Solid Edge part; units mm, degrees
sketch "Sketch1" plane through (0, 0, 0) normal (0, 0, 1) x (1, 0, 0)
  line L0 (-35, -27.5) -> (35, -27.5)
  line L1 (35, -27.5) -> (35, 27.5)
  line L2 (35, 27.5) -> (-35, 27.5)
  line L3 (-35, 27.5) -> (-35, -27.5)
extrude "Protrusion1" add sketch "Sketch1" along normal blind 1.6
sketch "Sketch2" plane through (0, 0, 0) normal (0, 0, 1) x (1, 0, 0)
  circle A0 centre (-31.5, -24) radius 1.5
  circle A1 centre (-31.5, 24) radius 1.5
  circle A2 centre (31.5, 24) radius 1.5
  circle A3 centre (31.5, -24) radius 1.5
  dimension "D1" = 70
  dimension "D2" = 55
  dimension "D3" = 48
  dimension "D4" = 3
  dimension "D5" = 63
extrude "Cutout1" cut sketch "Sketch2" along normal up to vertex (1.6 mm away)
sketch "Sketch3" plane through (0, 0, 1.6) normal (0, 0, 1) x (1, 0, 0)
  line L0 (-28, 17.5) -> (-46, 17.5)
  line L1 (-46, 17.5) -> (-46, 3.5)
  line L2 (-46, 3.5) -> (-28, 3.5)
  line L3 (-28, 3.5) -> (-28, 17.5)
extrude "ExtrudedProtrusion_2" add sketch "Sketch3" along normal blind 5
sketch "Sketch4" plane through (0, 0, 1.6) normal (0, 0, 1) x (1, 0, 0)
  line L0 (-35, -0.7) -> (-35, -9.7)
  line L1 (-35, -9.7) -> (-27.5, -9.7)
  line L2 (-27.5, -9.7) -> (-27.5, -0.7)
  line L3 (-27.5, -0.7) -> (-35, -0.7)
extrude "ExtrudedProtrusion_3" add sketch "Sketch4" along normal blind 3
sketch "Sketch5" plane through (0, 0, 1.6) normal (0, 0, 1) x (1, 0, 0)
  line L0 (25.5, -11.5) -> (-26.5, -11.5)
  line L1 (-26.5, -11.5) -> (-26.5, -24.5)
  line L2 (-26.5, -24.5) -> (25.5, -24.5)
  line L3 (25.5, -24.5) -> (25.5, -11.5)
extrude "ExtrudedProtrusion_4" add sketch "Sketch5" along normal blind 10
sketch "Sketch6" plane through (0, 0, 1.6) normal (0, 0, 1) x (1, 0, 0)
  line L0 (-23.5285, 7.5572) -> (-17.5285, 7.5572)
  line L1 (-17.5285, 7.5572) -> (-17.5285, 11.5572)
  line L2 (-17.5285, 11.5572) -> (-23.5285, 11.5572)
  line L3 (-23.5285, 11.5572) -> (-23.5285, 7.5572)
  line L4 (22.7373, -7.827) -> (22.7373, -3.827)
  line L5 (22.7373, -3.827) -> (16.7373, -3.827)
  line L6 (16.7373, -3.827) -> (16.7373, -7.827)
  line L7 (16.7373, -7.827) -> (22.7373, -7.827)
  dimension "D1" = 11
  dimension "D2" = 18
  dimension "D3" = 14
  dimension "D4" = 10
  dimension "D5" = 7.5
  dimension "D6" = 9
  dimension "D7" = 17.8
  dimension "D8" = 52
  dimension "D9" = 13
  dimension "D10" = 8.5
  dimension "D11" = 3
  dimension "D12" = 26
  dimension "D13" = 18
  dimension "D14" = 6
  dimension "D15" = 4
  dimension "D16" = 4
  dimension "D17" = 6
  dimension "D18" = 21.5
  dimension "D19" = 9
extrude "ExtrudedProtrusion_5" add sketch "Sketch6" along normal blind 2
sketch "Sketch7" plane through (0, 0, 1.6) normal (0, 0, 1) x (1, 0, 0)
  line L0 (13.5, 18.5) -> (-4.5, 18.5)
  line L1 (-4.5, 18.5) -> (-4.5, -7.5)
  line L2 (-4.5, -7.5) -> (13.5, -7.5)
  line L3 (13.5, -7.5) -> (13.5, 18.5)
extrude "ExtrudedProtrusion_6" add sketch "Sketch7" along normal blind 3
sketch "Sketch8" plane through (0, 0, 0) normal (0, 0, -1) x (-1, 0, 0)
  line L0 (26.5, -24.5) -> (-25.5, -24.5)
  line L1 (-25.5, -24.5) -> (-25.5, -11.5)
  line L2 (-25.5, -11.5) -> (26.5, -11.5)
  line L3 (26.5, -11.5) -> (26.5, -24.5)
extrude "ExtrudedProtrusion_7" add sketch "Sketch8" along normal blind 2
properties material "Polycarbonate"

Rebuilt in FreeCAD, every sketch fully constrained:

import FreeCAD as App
import Part
import Sketcher

doc = App.newDocument("Part")
body = doc.addObject("PartDesign::Body", "Body")

# Sketch on XY plane
sketch1 = body.newObject("Sketcher::SketchObject", "Sketch")
sketch1.AttachmentSupport = (doc.getObject("XY_Plane"), [""])
sketch1.MapMode = "FlatFace"
sketch1.addGeometry([
    Part.LineSegment(App.Vector(-35, 28, 0), App.Vector(-35, -28, 0)),
    Part.LineSegment(App.Vector(-35, -28, 0), App.Vector(35, -28, 0)),
    Part.LineSegment(App.Vector(35, -28, 0), App.Vector(35, 28, 0)),
    Part.LineSegment(App.Vector(35, 28, 0), App.Vector(-35, 28, 0)),
], False)
sketch1.addConstraint([
    Sketcher.Constraint("Coincident", 0, 2, 1, 1),
    Sketcher.Constraint("Coincident", 1, 2, 2, 1),
    Sketcher.Constraint("Coincident", 2, 2, 3, 1),
    Sketcher.Constraint("Coincident", 3, 2, 0, 1),
    Sketcher.Constraint("Vertical", 0),
    Sketcher.Constraint("Horizontal", 1),
    Sketcher.Constraint("Vertical", 2),
    Sketcher.Constraint("Horizontal", 3),
    Sketcher.Constraint("Symmetric", 0, 2, 2, 2, -1, 1),
    Sketcher.Constraint("DistanceX", 1, 1, 1, 2, 70.0),
    Sketcher.Constraint("DistanceY", 0, 2, 0, 1, 55.0),
])
pad1 = body.newObject("PartDesign::Pad", "Pad")
pad1.Profile = sketch1
pad1.Length = 1.6

# Sketch on XY plane
sketch2 = body.newObject("Sketcher::SketchObject", "Sketch001")
sketch2.AttachmentSupport = (doc.getObject("XY_Plane"), [""])
sketch2.MapMode = "FlatFace"
sketch2.addGeometry([
    Part.Circle(App.Vector(-31.5, -24, 0), App.Vector(0, 0, 1), 1.5),
    Part.Circle(App.Vector(-31.5, 24, 0), App.Vector(0, 0, 1), 1.5),
    Part.Circle(App.Vector(31.5, 24, 0), App.Vector(0, 0, 1), 1.5),
    Part.Circle(App.Vector(31.5, -24, 0), App.Vector(0, 0, 1), 1.5),
], False)
sketch2.addConstraint([
    Sketcher.Constraint("Equal", 0, 1),
    Sketcher.Constraint("Equal", 1, 2),
    Sketcher.Constraint("Equal", 2, 3),
    Sketcher.Constraint("Symmetric", 0, 3, 2, 3, -1, 1),
    Sketcher.Constraint("Symmetric", 1, 3, 3, 3, -1, 1),
    Sketcher.Constraint("Symmetric", 1, 3, 2, 3, -2),
    Sketcher.Constraint("Diameter", 0, 3.0),
    Sketcher.Constraint("DistanceY", 0, 3, -1, 1, 24.0),
    Sketcher.Constraint("DistanceX", 1, 3, 2, 3, 63.0),
])
pocket1 = body.newObject("PartDesign::Pocket", "Pocket")
pocket1.Profile = sketch2
pocket1.Length = 1.6
pocket1.Reversed = True

# Sketch on XY plane
sketch3 = body.newObject("Sketcher::SketchObject", "Sketch002")
sketch3.AttachmentSupport = (doc.getObject("XY_Plane"), [""])
sketch3.MapMode = "FlatFace"
sketch3.AttachmentOffset = App.Placement(App.Vector(0, 0, 1.6), App.Rotation())
sketch3.addGeometry([
    Part.LineSegment(App.Vector(-28, 4, 0), App.Vector(-28, 18, 0)),
    Part.LineSegment(App.Vector(-28, 18, 0), App.Vector(-46, 18, 0)),
    Part.LineSegment(App.Vector(-46, 18, 0), App.Vector(-46, 4, 0)),
    Part.LineSegment(App.Vector(-46, 4, 0), App.Vector(-28, 4, 0)),
], False)
sketch3.addConstraint([
    Sketcher.Constraint("Coincident", 0, 2, 1, 1),
    Sketcher.Constraint("Coincident", 1, 2, 2, 1),
    Sketcher.Constraint("Coincident", 2, 2, 3, 1),
    Sketcher.Constraint("Coincident", 3, 2, 0, 1),
    Sketcher.Constraint("Vertical", 0),
    Sketcher.Constraint("Horizontal", 1),
    Sketcher.Constraint("Vertical", 2),
    Sketcher.Constraint("Horizontal", 3),
    Sketcher.Constraint("DistanceX", 1, 2, 1, 1, 18.0),
    Sketcher.Constraint("DistanceY", 0, 1, 0, 2, 14.0),
    Sketcher.Constraint("DistanceX", 0, 2, -1, 1, 28.0),
    Sketcher.Constraint("DistanceY", -1, 1, 0, 2, 17.5),
])
pad2 = body.newObject("PartDesign::Pad", "Pad001")
pad2.Profile = sketch3
pad2.Length = 5

# Sketch on XY plane
sketch4 = body.newObject("Sketcher::SketchObject", "Sketch003")
sketch4.AttachmentSupport = (doc.getObject("XY_Plane"), [""])
sketch4.MapMode = "FlatFace"
sketch4.AttachmentOffset = App.Placement(App.Vector(0, 0, 1.6), App.Rotation())
sketch4.addGeometry([
    Part.LineSegment(App.Vector(-28, -1, 0), App.Vector(-35, -1, 0)),
    Part.LineSegment(App.Vector(-35, -1, 0), App.Vector(-35, -10, 0)),
    Part.LineSegment(App.Vector(-35, -10, 0), App.Vector(-28, -10, 0)),
    Part.LineSegment(App.Vector(-28, -10, 0), App.Vector(-28, -1, 0)),
], False)
sketch4.addConstraint([
    Sketcher.Constraint("Coincident", 0, 2, 1, 1),
    Sketcher.Constraint("Coincident", 1, 2, 2, 1),
    Sketcher.Constraint("Coincident", 2, 2, 3, 1),
    Sketcher.Constraint("Coincident", 3, 2, 0, 1),
    Sketcher.Constraint("Horizontal", 0),
    Sketcher.Constraint("Vertical", 1),
    Sketcher.Constraint("Horizontal", 2),
    Sketcher.Constraint("Vertical", 3),
    Sketcher.Constraint("DistanceY", 1, 2, 1, 1, 9.0),
    Sketcher.Constraint("DistanceX", 0, 2, 0, 1, 7.5),
    Sketcher.Constraint("DistanceX", 0, 2, -1, 1, 35.0),
    Sketcher.Constraint("DistanceY", 0, 2, -1, 1, 0.7),
])
pad3 = body.newObject("PartDesign::Pad", "Pad002")
pad3.Profile = sketch4
pad3.Length = 3

# Sketch on XY plane
sketch5 = body.newObject("Sketcher::SketchObject", "Sketch004")
sketch5.AttachmentSupport = (doc.getObject("XY_Plane"), [""])
sketch5.MapMode = "FlatFace"
sketch5.AttachmentOffset = App.Placement(App.Vector(0, 0, 1.6), App.Rotation())
sketch5.addGeometry([
    Part.LineSegment(App.Vector(26, -24, 0), App.Vector(26, -12, 0)),
    Part.LineSegment(App.Vector(26, -12, 0), App.Vector(-26, -12, 0)),
    Part.LineSegment(App.Vector(-26, -12, 0), App.Vector(-26, -24, 0)),
    Part.LineSegment(App.Vector(-26, -24, 0), App.Vector(26, -24, 0)),
], False)
sketch5.addConstraint([
    Sketcher.Constraint("Coincident", 0, 2, 1, 1),
    Sketcher.Constraint("Coincident", 1, 2, 2, 1),
    Sketcher.Constraint("Coincident", 2, 2, 3, 1),
    Sketcher.Constraint("Coincident", 3, 2, 0, 1),
    Sketcher.Constraint("Vertical", 0),
    Sketcher.Constraint("Horizontal", 1),
    Sketcher.Constraint("Vertical", 2),
    Sketcher.Constraint("Horizontal", 3),
    Sketcher.Constraint("DistanceX", 1, 2, 1, 1, 52.0),
    Sketcher.Constraint("DistanceY", 0, 1, 0, 2, 13.0),
    Sketcher.Constraint("DistanceX", -1, 1, 0, 2, 25.5),
    Sketcher.Constraint("DistanceY", 0, 2, -1, 1, 11.5),
])
pad4 = body.newObject("PartDesign::Pad", "Pad003")
pad4.Profile = sketch5
pad4.Length = 10

# Sketch on XY plane
sketch6 = body.newObject("Sketcher::SketchObject", "Sketch005")
sketch6.AttachmentSupport = (doc.getObject("XY_Plane"), [""])
sketch6.MapMode = "FlatFace"
sketch6.AttachmentOffset = App.Placement(App.Vector(0, 0, 1.6), App.Rotation())
sketch6.addGeometry([
    Part.LineSegment(App.Vector(-23.5, 11.6, 0), App.Vector(-23.5, 7.6, 0)),  # 0
    Part.LineSegment(App.Vector(-23.5, 7.6, 0), App.Vector(-17.5, 7.6, 0)),  # 1
    Part.LineSegment(App.Vector(-17.5, 7.6, 0), App.Vector(-17.5, 11.6, 0)),  # 2
    Part.LineSegment(App.Vector(-17.5, 11.6, 0), App.Vector(-23.5, 11.6, 0)),  # 3
    Part.LineSegment(App.Vector(16.7, -7.8, 0), App.Vector(22.7, -7.8, 0)),  # 4
    Part.LineSegment(App.Vector(22.7, -7.8, 0), App.Vector(22.7, -3.8, 0)),  # 5
    Part.LineSegment(App.Vector(22.7, -3.8, 0), App.Vector(16.7, -3.8, 0)),  # 6
    Part.LineSegment(App.Vector(16.7, -3.8, 0), App.Vector(16.7, -7.8, 0)),  # 7
], False)
sketch6.addConstraint([
    Sketcher.Constraint("Coincident", 0, 2, 1, 1),
    Sketcher.Constraint("Coincident", 1, 2, 2, 1),
    Sketcher.Constraint("Coincident", 2, 2, 3, 1),
    Sketcher.Constraint("Coincident", 3, 2, 0, 1),
    Sketcher.Constraint("Coincident", 4, 2, 5, 1),
    Sketcher.Constraint("Coincident", 5, 2, 6, 1),
    Sketcher.Constraint("Coincident", 6, 2, 7, 1),
    Sketcher.Constraint("Coincident", 7, 2, 4, 1),
    Sketcher.Constraint("Vertical", 0),
    Sketcher.Constraint("Horizontal", 1),
    Sketcher.Constraint("Vertical", 2),
    Sketcher.Constraint("Horizontal", 3),
    Sketcher.Constraint("Horizontal", 4),
    Sketcher.Constraint("Vertical", 5),
    Sketcher.Constraint("Horizontal", 6),
    Sketcher.Constraint("Vertical", 7),
    Sketcher.Constraint("Equal", 3, 4),
    Sketcher.Constraint("Equal", 2, 5),
    Sketcher.Constraint("DistanceX", 1, 1, 1, 2, 6.0),
    Sketcher.Constraint("DistanceY", 0, 2, 0, 1, 4.0),
    Sketcher.Constraint("DistanceY", 4, 2, -1, 1, 7.827),
    Sketcher.Constraint("DistanceX", 0, 2, -1, 1, 23.5285),
    Sketcher.Constraint("DistanceY", -1, 1, 0, 2, 7.5572),
    Sketcher.Constraint("DistanceX", -1, 1, 4, 2, 22.7373),
])
pad5 = body.newObject("PartDesign::Pad", "Pad004")
pad5.Profile = sketch6
pad5.Length = 2

# Sketch on XY plane
sketch7 = body.newObject("Sketcher::SketchObject", "Sketch006")
sketch7.AttachmentSupport = (doc.getObject("XY_Plane"), [""])
sketch7.MapMode = "FlatFace"
sketch7.AttachmentOffset = App.Placement(App.Vector(0, 0, 1.6), App.Rotation())
sketch7.addGeometry([
    Part.LineSegment(App.Vector(14, -8, 0), App.Vector(14, 18, 0)),
    Part.LineSegment(App.Vector(14, 18, 0), App.Vector(-4, 18, 0)),
    Part.LineSegment(App.Vector(-4, 18, 0), App.Vector(-4, -8, 0)),
    Part.LineSegment(App.Vector(-4, -8, 0), App.Vector(14, -8, 0)),
], False)
sketch7.addConstraint([
    Sketcher.Constraint("Coincident", 0, 2, 1, 1),
    Sketcher.Constraint("Coincident", 1, 2, 2, 1),
    Sketcher.Constraint("Coincident", 2, 2, 3, 1),
    Sketcher.Constraint("Coincident", 3, 2, 0, 1),
    Sketcher.Constraint("Vertical", 0),
    Sketcher.Constraint("Horizontal", 1),
    Sketcher.Constraint("Vertical", 2),
    Sketcher.Constraint("Horizontal", 3),
    Sketcher.Constraint("DistanceX", 1, 2, 1, 1, 18.0),
    Sketcher.Constraint("DistanceY", 0, 1, 0, 2, 26.0),
    Sketcher.Constraint("DistanceX", -1, 1, 0, 2, 13.5),
    Sketcher.Constraint("DistanceY", -1, 1, 0, 2, 18.5),
])
pad6 = body.newObject("PartDesign::Pad", "Pad005")
pad6.Profile = sketch7
pad6.Length = 3

# Sketch on XY plane
sketch8 = body.newObject("Sketcher::SketchObject", "Sketch007")
sketch8.AttachmentSupport = (doc.getObject("XY_Plane"), [""])
sketch8.MapMode = "FlatFace"
sketch8.addGeometry([
    Part.LineSegment(App.Vector(26, -24, 0), App.Vector(-26, -24, 0)),
    Part.LineSegment(App.Vector(-26, -24, 0), App.Vector(-26, -12, 0)),
    Part.LineSegment(App.Vector(-26, -12, 0), App.Vector(26, -12, 0)),
    Part.LineSegment(App.Vector(26, -12, 0), App.Vector(26, -24, 0)),
], False)
sketch8.addConstraint([
    Sketcher.Constraint("Coincident", 0, 2, 1, 1),
    Sketcher.Constraint("Coincident", 1, 2, 2, 1),
    Sketcher.Constraint("Coincident", 2, 2, 3, 1),
    Sketcher.Constraint("Coincident", 3, 2, 0, 1),
    Sketcher.Constraint("Horizontal", 0),
    Sketcher.Constraint("Vertical", 1),
    Sketcher.Constraint("Horizontal", 2),
    Sketcher.Constraint("Vertical", 3),
    Sketcher.Constraint("DistanceX", 0, 2, 0, 1, 52.0),
    Sketcher.Constraint("DistanceY", 1, 1, 1, 2, 13.0),
    Sketcher.Constraint("DistanceX", 0, 2, -1, 1, 26.5),
    Sketcher.Constraint("DistanceY", 0, 2, -1, 1, 24.5),
])
pad7 = body.newObject("PartDesign::Pad", "Pad006")
pad7.Profile = sketch8
pad7.Length = 2
pad7.Reversed = True

doc.recompute()
